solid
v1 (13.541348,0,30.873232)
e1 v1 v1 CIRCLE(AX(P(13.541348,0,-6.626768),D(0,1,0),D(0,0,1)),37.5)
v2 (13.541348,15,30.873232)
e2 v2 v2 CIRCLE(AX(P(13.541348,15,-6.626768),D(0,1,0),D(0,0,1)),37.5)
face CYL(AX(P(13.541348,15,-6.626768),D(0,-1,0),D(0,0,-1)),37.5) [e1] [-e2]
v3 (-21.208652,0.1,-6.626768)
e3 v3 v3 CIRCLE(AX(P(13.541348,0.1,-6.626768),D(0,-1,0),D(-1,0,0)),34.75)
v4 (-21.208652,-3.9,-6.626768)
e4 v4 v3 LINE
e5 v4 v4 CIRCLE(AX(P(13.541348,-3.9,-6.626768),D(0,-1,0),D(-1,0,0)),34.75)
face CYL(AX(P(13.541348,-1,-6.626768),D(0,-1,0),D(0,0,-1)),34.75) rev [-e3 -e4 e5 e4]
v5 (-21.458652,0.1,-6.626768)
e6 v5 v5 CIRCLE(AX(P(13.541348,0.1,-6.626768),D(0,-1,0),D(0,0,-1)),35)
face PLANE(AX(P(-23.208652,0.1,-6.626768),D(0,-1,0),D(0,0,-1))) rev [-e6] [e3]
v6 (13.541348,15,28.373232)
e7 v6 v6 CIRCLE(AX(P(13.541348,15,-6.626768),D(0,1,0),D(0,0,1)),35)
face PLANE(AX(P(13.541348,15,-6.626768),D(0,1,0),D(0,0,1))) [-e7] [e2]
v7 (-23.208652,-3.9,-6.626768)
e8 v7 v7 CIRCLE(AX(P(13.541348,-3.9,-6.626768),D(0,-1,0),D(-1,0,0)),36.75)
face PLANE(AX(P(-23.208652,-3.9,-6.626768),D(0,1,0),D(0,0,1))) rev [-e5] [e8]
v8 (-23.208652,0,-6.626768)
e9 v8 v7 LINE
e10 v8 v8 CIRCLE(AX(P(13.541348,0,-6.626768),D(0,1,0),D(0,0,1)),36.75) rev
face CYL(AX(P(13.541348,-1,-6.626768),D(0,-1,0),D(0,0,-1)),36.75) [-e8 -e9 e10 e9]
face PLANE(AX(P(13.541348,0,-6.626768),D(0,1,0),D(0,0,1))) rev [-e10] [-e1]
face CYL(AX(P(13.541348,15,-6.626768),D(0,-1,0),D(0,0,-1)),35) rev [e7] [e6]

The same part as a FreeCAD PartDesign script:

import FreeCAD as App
import Part
import Sketcher

doc = App.newDocument("Part")
params = doc.addObject("Spreadsheet::Sheet", "Params")
for row, (alias, value) in enumerate([
    ("sketch1_diameter", "75 mm"),
    ("sketch1_diameter2", "70 mm"),
    ("pad1_length", "15 mm"),
    ("sketch2_width", "2 mm"),
    ("sketch2_height", "4 mm"),
    ("sketch3_diameter", "72.5 mm"),
], start=1):
    params.set(f"A{row}", alias)
    params.set(f"B{row}", "=" + value)
    params.setAlias(f"B{row}", alias)

body = doc.addObject("PartDesign::Body", "Body")

sketch1 = body.newObject("Sketcher::SketchObject", "Sketch")
sketch1.AttachmentSupport = (doc.getObject("XZ_Plane"), [""])
sketch1.MapMode = "FlatFace"
sketch1.addGeometry([
    Part.Circle(App.Vector(14, -7, 0), App.Vector(0, 0, 1), 38),
    Part.Circle(App.Vector(14, -7, 0), App.Vector(0, 0, 1), 35),
], False)
sketch1.addConstraint([
    Sketcher.Constraint("Coincident", 1, 3, 0, 3),
    Sketcher.Constraint("Diameter", 0, 75.0),
    Sketcher.Constraint("Diameter", 1, 70.0),
    Sketcher.Constraint("DistanceX", -1, 1, 0, 3, 13.541348),
    Sketcher.Constraint("DistanceY", 0, 3, -1, 1, 6.626768),
])
sketch1.setExpression("Constraints[1]", "Params.sketch1_diameter")
sketch1.setExpression("Constraints[2]", "Params.sketch1_diameter2")
pad1 = body.newObject("PartDesign::Pad", "Pad")
pad1.Profile = sketch1
pad1.setExpression("Length", "Params.pad1_length")
pad1.Reversed = True

sketch2 = body.newObject("Sketcher::SketchObject", "Sketch001")
sketch2.AttachmentSupport = (doc.getObject("XY_Plane"), [""])
sketch2.MapMode = "FlatFace"
sketch2.AttachmentOffset = App.Placement(App.Vector(0, 0, -6.626768), App.Rotation())
sketch2.addGeometry([
    Part.LineSegment(App.Vector(-23.2, 0.1, 0), App.Vector(-23.2, -3.9, 0)),
    Part.LineSegment(App.Vector(-23.2, -3.9, 0), App.Vector(-21.2, -3.9, 0)),
    Part.LineSegment(App.Vector(-21.2, -3.9, 0), App.Vector(-21.2, 0.1, 0)),
    Part.LineSegment(App.Vector(-21.2, 0.1, 0), App.Vector(-23.2, 0.1, 0)),
], False)
sketch2.addConstraint([
    Sketcher.Constraint("Coincident", 0, 2, 1, 1),
    Sketcher.Constraint("Coincident", 1, 2, 2, 1),
    Sketcher.Constraint("Coincident", 2, 2, 3, 1),
    Sketcher.Constraint("Coincident", 3, 2, 0, 1),
    Sketcher.Constraint("Vertical", 0),
    Sketcher.Constraint("Horizontal", 1),
    Sketcher.Constraint("Vertical", 2),
    Sketcher.Constraint("Horizontal", 3),
    Sketcher.Constraint("DistanceX", 1, 1, 1, 2, 2.0),
    Sketcher.Constraint("DistanceY", 0, 2, 0, 1, 4.0),
    Sketcher.Constraint("DistanceY", 0, 2, -1, 1, 3.9),
    Sketcher.Constraint("DistanceX", 0, 2, -1, 1, 23.208652),
])
sketch2.setExpression("Constraints[8]", "Params.sketch2_width")
sketch2.setExpression("Constraints[9]", "Params.sketch2_height")

sketch3 = body.newObject("Sketcher::SketchObject", "Sketch002")
sketch3.AttachmentSupport = (doc.getObject("XZ_Plane"), [""])
sketch3.MapMode = "FlatFace"
sketch3.AttachmentOffset = App.Placement(App.Vector(0, 0, 1), App.Rotation())
sketch3.addGeometry(Part.Circle(App.Vector(14, -7, 0), App.Vector(0, 0, 1), 36), False)
sketch3.addConstraint([
    Sketcher.Constraint("Diameter", 0, 72.5),
    Sketcher.Constraint("DistanceX", -1, 1, 0, 3, 13.541348),
    Sketcher.Constraint("DistanceY", 0, 3, -1, 1, 6.626768),
])
sketch3.setExpression("Constraints[0]", "Params.sketch3_diameter")
doc.recompute()

additivepipe = body.newObject("PartDesign::AdditivePipe", "AdditivePipe")
additivepipe.Profile = sketch2
additivepipe.Spine = (sketch3, ["Edge1"])

doc.recompute()
